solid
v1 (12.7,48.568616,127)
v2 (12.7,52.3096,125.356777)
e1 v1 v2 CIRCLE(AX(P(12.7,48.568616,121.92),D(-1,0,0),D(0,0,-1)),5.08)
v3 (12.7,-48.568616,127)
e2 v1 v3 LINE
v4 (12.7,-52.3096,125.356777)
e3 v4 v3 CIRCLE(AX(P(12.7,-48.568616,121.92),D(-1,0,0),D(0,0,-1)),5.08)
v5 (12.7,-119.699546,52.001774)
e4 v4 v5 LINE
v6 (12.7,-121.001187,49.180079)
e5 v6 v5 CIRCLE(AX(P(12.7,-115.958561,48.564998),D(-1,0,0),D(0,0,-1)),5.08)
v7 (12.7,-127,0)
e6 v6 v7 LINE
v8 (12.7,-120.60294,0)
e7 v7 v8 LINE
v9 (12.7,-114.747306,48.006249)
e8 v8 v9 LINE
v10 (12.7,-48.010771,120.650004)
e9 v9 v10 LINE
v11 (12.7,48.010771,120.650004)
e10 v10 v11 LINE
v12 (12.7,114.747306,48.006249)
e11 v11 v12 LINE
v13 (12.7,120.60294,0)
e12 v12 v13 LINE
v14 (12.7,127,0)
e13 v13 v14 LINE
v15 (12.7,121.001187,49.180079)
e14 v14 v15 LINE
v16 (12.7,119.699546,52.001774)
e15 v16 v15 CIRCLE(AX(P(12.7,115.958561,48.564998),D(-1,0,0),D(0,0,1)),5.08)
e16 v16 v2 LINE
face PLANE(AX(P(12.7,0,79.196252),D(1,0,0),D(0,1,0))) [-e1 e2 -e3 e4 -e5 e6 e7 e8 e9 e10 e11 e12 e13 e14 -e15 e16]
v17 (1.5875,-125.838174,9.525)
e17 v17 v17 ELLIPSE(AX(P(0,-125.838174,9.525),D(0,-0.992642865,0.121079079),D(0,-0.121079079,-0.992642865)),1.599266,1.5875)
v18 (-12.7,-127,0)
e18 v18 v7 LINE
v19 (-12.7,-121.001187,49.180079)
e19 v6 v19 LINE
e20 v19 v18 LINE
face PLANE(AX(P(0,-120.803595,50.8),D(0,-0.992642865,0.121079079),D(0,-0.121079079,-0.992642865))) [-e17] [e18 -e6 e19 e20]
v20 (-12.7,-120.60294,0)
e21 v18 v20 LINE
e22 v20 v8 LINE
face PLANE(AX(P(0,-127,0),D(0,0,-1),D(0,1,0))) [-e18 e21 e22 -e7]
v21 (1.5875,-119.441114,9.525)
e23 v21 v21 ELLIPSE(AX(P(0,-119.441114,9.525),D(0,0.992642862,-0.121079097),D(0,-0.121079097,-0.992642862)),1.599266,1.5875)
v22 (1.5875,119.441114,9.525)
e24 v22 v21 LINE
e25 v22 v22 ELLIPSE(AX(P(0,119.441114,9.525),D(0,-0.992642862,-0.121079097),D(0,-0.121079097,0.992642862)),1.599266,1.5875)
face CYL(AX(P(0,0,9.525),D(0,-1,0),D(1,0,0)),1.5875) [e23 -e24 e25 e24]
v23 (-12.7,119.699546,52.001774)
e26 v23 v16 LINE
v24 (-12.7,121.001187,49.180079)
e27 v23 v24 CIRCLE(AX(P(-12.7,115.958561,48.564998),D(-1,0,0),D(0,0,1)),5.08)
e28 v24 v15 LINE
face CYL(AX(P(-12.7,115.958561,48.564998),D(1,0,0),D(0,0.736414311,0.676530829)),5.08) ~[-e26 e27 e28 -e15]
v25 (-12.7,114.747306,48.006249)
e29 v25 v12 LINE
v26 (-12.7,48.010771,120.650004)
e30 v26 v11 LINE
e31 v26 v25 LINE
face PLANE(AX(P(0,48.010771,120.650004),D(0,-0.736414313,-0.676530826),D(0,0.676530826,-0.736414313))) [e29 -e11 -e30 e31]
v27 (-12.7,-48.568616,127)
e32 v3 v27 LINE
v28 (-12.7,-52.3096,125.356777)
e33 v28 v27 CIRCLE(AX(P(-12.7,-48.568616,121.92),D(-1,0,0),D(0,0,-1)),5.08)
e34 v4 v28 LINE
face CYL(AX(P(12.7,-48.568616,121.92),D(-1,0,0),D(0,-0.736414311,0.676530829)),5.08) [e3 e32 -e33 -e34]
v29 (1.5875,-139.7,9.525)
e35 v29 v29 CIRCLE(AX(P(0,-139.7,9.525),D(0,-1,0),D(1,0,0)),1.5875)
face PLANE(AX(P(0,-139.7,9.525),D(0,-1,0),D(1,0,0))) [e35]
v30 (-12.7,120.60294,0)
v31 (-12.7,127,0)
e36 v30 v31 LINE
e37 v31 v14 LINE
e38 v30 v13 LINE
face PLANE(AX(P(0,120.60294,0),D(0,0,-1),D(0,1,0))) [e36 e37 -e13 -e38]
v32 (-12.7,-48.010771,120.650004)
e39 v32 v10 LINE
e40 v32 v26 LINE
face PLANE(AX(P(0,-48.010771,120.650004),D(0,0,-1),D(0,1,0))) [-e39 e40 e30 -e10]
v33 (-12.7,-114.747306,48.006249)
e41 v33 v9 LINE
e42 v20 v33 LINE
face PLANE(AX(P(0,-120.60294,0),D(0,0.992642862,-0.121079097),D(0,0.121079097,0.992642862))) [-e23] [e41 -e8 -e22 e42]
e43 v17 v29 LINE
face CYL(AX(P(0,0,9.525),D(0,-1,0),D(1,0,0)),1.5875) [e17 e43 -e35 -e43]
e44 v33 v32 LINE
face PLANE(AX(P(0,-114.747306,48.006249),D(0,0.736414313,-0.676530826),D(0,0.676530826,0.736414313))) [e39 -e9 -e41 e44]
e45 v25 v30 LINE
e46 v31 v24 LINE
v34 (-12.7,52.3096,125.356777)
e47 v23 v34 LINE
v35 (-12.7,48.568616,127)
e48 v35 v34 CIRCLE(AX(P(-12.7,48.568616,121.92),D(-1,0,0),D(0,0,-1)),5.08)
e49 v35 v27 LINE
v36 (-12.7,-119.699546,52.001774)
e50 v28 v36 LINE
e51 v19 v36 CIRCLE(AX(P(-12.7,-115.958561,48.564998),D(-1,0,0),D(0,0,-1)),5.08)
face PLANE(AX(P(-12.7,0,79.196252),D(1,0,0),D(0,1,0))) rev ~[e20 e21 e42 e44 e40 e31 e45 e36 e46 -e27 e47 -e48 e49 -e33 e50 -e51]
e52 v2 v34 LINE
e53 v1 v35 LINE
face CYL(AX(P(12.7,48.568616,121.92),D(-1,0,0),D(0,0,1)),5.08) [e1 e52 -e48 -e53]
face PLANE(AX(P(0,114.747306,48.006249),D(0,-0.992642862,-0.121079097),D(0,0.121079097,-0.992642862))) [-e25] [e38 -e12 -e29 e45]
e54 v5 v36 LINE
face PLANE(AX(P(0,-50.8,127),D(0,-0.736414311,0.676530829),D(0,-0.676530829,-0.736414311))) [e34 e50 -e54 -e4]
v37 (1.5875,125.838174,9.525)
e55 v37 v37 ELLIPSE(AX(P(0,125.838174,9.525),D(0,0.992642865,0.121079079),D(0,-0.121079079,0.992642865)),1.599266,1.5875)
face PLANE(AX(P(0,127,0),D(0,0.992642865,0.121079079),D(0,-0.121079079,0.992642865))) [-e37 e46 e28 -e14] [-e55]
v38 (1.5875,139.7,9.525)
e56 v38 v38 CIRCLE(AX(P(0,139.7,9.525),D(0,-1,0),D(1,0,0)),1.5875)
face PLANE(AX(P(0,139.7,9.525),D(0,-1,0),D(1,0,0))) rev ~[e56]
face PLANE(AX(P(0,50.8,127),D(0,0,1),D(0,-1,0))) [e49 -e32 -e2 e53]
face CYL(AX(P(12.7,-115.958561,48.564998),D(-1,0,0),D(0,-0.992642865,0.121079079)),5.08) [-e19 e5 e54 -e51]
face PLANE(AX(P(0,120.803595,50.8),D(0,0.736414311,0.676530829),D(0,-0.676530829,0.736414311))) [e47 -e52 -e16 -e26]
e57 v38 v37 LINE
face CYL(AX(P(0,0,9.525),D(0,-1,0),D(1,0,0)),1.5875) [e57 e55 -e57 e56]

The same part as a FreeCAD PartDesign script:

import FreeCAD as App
import Part
import Sketcher
Q = App.Units.Quantity


def edges_at(feature, points):
    """Names of the edges that pass closest to the given points."""
    edges = feature.Shape.Edges
    near = lambda p: min(range(len(edges)), key=lambda i: edges[i].distToShape(Part.Vertex(*p))[0])
    return sorted({f"Edge{near(p) + 1}" for p in points})


def add_polygon(sketch, points):
    """Adds a closed chain of lines whose ends are joined by coincident constraints."""
    first, n = sketch.GeometryCount, len(points)
    for a, b in zip(points, points[1:] + points[:1]):
        sketch.addGeometry(Part.LineSegment(App.Vector(*a, 0), App.Vector(*b, 0)), False)
    for i in range(n):
        sketch.addConstraint(Sketcher.Constraint("Coincident", first + i, 2, first + (i + 1) % n, 1))

doc = App.newDocument("Part")
body = doc.addObject("PartDesign::Body", "Body")

sketch1 = body.newObject("Sketcher::SketchObject", "Sketch")
sketch1.AttachmentSupport = (doc.getObject("YZ_Plane"), [""])
sketch1.MapMode = "FlatFace"
add_polygon(sketch1, [(-120.803595, 50.8), (-127, 0), (-120.60294, 0), (-114.747306, 48.006249), (-48.010771, 120.650004), (48.010771, 120.650004), (114.747306, 48.006249), (120.60294, 0), (127, 0), (120.803595, 50.8), (50.8, 127), (-50.8, 127)])
sketch1.addConstraint(Sketcher.Constraint("Horizontal", 1))
sketch1.addConstraint(Sketcher.Constraint("Horizontal", 4))
sketch1.addConstraint(Sketcher.Constraint("Horizontal", 7))
sketch1.addConstraint(Sketcher.Constraint("Horizontal", 10))
sketch1.addConstraint(Sketcher.Constraint("Symmetric", 1, 2, 6, 2, -1, 1))
sketch1.addConstraint(Sketcher.Constraint("Symmetric", 2, 2, 5, 2, -2))
sketch1.addConstraint(Sketcher.Constraint("Symmetric", 0, 2, 7, 2, -2))
sketch1.addConstraint(Sketcher.Constraint("Symmetric", 8, 2, 11, 2, -2))
sketch1.addConstraint(Sketcher.Constraint("Parallel", 0, 2))
sketch1.addConstraint(Sketcher.Constraint("Parallel", 5, 9))
sketch1.addConstraint(Sketcher.Constraint("Parallel", 3, 11))
sketch1.addConstraint(Sketcher.Constraint("Equal", 3, 5))
sketch1.addConstraint(Sketcher.Constraint("DistanceX", 10, 2, 10, 1, Q("4 in")))
sketch1.addConstraint(Sketcher.Constraint("DistanceX", 0, 2, -1, 1, Q("5 in")))
sketch1.addConstraint(Sketcher.Constraint("DistanceY", -1, 1, 8, 2, Q("2 in")))
sketch1.addConstraint(Sketcher.Constraint("DistanceY", -1, 1, 9, 2, Q("5 in")))
sketch1.addConstraint(Sketcher.Constraint("DistanceY", -1, 1, 3, 2, Q("4.7500002 in")))
sketch1.addConstraint(Sketcher.Constraint("DistanceX", 6, 2, 8, 2, Q("0.0078998 in")))
sketch1.addConstraint(Sketcher.Constraint("DistanceX", 1, 1, 1, 2, 6.39706))
sketch1.addConstraint(Sketcher.Constraint("DistanceX", 4, 1, 4, 2, 96.021542))
pad1 = body.newObject("PartDesign::Pad", "Pad")
pad1.Profile = sketch1
pad1.Length = Q("1 in")
pad1.Midplane = True
doc.recompute()

fillet = body.newObject("PartDesign::Fillet", "Fillet")
fillet.Base = (pad1, edges_at(pad1, [
    (0, -120.804, 50.8),
    (0, 120.804, 50.8),
    (0, -50.8, 127),
    (0, 50.8, 127),
]))
fillet.Radius = Q("0.2 in")

sketch2 = body.newObject("Sketcher::SketchObject", "Sketch001")
sketch2.AttachmentSupport = (doc.getObject("XZ_Plane"), [""])
sketch2.MapMode = "FlatFace"
sketch2.addGeometry(Part.Circle(App.Vector(0, 9.525, 0), App.Vector(0, 0, 1), 1.5875), False)
sketch2.addConstraint(Sketcher.Constraint("PointOnObject", 0, 3, -2))
sketch2.addConstraint(Sketcher.Constraint("Diameter", 0, Q("0.125 in")))
sketch2.addConstraint(Sketcher.Constraint("DistanceY", -1, 1, 0, 3, Q("0.375 in")))
pocket1 = body.newObject("PartDesign::Pocket", "Pocket")
pocket1.Profile = sketch2
pocket1.Length = Q("20 in")
pocket1.Midplane = True

sketch3 = body.newObject("Sketcher::SketchObject", "Sketch002")
sketch3.AttachmentSupport = (doc.getObject("XZ_Plane"), [""])
sketch3.MapMode = "FlatFace"
sketch3.addGeometry(Part.Circle(App.Vector(0, 9.525, 0), App.Vector(0, 0, 1), 1.5875), False)
sketch3.addConstraint(Sketcher.Constraint("PointOnObject", 0, 3, -2))
sketch3.addConstraint(Sketcher.Constraint("Diameter", 0, Q("0.125 in")))
sketch3.addConstraint(Sketcher.Constraint("DistanceY", -1, 1, 0, 3, Q("0.375 in")))
pad2 = body.newObject("PartDesign::Pad", "Pad001")
pad2.Profile = sketch3
pad2.Length = Q("11 in")
pad2.Midplane = True

doc.recompute()
